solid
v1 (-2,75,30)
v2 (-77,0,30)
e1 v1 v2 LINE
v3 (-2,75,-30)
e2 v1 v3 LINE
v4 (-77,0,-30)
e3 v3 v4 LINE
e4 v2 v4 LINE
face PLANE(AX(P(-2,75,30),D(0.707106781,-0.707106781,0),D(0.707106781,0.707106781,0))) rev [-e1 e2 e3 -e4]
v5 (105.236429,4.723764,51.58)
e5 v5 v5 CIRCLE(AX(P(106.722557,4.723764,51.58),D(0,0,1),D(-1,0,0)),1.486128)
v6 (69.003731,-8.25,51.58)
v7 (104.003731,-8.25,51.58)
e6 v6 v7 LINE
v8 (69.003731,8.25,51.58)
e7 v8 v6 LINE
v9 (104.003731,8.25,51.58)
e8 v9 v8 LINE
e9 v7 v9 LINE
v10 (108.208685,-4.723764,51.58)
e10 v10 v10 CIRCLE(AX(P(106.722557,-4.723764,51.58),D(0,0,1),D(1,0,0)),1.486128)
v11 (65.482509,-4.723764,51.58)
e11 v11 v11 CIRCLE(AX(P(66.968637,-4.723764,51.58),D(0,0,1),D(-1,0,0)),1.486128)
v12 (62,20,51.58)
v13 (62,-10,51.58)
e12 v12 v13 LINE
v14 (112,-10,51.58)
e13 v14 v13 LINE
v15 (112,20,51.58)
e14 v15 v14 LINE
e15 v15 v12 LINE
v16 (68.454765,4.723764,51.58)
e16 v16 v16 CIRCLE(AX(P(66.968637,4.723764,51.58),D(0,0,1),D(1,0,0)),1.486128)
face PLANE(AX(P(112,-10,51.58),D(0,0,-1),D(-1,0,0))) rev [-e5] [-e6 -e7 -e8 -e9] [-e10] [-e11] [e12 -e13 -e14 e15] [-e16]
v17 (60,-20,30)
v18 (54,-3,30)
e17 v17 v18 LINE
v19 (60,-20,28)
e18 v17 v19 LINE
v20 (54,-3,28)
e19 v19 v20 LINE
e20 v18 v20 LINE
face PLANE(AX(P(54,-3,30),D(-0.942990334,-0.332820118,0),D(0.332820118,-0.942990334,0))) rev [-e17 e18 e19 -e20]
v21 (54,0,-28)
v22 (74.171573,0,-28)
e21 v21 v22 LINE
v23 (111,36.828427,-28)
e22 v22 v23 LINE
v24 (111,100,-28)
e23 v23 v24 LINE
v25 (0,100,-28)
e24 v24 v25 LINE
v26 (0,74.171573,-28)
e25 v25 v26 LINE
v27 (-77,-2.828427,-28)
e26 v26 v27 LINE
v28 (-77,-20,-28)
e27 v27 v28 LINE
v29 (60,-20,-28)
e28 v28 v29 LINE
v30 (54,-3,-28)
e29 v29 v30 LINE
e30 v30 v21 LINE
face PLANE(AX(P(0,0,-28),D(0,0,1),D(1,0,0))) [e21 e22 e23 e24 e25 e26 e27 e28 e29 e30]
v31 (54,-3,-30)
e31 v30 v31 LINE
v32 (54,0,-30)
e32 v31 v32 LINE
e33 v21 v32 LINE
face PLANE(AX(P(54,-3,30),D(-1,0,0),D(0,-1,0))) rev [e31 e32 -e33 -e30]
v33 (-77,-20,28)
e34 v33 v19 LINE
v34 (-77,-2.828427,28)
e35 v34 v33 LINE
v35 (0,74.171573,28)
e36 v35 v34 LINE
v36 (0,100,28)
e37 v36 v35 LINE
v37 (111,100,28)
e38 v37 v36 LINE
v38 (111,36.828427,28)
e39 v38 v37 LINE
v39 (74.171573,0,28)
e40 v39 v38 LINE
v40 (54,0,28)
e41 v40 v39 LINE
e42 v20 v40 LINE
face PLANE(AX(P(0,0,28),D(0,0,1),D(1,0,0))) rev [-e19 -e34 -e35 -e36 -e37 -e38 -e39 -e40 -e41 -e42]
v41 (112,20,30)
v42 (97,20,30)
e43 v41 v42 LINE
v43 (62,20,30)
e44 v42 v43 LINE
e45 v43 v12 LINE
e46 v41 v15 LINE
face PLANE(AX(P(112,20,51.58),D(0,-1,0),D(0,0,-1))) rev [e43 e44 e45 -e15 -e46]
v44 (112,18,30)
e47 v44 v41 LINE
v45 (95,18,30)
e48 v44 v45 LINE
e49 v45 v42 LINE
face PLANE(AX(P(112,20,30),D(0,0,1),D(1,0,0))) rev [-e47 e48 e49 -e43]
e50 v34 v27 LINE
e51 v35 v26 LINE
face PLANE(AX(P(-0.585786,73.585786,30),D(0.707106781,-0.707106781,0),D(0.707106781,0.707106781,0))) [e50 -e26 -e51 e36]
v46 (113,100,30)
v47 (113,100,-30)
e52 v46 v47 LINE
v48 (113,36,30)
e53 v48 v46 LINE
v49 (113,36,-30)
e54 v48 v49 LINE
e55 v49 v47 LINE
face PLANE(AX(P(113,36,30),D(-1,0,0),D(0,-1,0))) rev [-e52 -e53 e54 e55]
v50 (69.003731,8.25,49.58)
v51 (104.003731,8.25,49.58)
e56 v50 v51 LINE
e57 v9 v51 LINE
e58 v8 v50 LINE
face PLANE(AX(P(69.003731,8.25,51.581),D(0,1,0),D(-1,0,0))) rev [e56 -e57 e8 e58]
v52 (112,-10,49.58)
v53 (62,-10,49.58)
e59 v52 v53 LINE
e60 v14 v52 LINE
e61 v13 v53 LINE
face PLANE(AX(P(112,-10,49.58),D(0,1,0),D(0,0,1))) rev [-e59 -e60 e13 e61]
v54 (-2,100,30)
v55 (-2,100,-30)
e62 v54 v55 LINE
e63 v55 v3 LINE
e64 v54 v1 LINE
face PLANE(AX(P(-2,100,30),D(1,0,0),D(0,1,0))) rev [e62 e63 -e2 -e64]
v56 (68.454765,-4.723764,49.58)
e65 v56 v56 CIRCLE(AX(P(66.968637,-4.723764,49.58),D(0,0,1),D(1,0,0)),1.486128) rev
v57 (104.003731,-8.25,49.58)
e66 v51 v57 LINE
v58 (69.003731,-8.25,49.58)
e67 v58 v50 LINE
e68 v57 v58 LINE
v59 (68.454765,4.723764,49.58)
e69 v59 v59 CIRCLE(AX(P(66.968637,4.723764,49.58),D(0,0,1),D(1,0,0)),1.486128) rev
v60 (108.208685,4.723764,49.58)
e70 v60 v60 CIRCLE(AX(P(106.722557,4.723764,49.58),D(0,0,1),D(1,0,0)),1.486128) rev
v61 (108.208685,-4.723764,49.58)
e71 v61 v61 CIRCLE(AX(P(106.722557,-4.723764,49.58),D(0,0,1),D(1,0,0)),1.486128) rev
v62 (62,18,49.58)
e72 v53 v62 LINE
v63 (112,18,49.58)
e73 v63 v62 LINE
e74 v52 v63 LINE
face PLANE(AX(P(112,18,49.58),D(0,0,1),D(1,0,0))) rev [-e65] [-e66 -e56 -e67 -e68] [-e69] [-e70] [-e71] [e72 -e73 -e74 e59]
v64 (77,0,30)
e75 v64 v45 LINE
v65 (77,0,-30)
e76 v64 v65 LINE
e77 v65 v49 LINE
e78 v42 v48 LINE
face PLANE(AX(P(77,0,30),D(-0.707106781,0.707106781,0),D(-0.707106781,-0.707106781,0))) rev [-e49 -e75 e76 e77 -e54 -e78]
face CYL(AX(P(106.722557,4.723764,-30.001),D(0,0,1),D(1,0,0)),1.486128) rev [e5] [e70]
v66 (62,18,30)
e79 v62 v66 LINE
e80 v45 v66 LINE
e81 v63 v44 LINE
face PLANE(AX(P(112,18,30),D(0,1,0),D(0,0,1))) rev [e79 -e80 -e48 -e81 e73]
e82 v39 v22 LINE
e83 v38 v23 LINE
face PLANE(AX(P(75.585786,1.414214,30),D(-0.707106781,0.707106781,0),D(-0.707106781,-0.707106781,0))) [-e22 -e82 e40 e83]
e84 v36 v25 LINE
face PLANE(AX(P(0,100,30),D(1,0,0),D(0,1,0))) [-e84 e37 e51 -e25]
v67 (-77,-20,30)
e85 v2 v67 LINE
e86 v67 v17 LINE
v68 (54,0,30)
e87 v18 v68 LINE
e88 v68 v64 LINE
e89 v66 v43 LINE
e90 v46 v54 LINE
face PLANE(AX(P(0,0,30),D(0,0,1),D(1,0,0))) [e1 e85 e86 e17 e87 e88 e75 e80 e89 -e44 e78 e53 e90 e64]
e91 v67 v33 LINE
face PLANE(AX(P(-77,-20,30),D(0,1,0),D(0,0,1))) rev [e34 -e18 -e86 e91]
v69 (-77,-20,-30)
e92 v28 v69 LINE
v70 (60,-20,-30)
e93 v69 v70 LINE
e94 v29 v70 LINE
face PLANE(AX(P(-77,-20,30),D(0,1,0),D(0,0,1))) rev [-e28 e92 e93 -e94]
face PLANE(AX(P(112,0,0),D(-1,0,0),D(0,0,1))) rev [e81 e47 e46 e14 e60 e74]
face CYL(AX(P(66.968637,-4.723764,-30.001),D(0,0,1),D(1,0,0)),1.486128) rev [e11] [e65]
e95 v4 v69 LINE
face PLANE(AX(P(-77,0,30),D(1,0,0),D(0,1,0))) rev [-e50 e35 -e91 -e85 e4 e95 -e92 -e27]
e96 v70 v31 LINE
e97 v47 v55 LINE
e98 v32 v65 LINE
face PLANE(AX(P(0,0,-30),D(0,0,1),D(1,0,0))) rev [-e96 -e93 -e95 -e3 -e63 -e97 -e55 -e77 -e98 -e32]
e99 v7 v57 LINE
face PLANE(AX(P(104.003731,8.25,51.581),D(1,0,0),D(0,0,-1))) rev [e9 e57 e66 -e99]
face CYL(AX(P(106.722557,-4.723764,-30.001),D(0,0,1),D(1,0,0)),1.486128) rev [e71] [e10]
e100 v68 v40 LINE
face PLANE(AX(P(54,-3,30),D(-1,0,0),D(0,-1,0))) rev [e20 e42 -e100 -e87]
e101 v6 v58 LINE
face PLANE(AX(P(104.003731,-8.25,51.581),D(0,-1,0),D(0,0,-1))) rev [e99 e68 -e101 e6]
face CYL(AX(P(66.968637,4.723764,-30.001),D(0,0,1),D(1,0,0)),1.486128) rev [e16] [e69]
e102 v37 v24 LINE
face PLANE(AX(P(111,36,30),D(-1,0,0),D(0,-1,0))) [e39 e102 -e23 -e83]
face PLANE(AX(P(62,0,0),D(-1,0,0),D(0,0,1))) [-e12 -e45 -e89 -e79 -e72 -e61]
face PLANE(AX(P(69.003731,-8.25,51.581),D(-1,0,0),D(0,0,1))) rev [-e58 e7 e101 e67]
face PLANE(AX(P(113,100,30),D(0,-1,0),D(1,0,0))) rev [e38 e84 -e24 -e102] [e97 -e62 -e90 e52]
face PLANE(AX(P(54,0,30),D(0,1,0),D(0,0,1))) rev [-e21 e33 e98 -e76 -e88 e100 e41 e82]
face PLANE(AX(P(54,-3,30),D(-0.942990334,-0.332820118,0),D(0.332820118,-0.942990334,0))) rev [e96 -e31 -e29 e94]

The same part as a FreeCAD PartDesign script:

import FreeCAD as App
import Part
import Sketcher
Q = App.Units.Quantity


def faces_at(feature, points):
    """Names of the faces that lie closest to the given points."""
    faces = feature.Shape.Faces
    near = lambda p: min(range(len(faces)), key=lambda i: faces[i].distToShape(Part.Vertex(*p))[0])
    return sorted({f"Face{near(p) + 1}" for p in points})

doc = App.newDocument("Part")
params = doc.addObject("Spreadsheet::Sheet", "Params")
for row, (alias, value) in enumerate([
    ("sketch1_width", "115 mm"),
    ("sketch1_width2", "137 mm"),
    ("sketch1_width3", "23 mm"),
    ("sketch1_height", "64 mm"),
    ("sketch1_height2", "25 mm"),
    ("pad1_length", "60 mm"),
    ("thickness_wall", "2 mm"),
    ("sketch2_width", "2 mm"),
    ("sketch2_width2", "30 mm"),
    ("sketch2_height", "21.58 mm"),
    ("pad2_length", "50 mm"),
    ("sketch3_width", "35 mm"),
    ("sketch3_height", "16.5 mm"),
], start=1):
    params.set(f"A{row}", alias)
    params.set(f"B{row}", "=" + value)
    params.setAlias(f"B{row}", alias)

body = doc.addObject("PartDesign::Body", "Body")

# Sketch on XY plane
sketch1 = body.newObject("Sketcher::SketchObject", "Sketch")
sketch1.AttachmentSupport = (doc.getObject("XY_Plane"), [""])
sketch1.MapMode = "FlatFace"
sketch1.addGeometry([
    Part.LineSegment(App.Vector(77, 0, 0), App.Vector(113, 36, 0)),  # 0
    Part.LineSegment(App.Vector(113, 36, 0), App.Vector(113, 100, 0)),  # 1
    Part.LineSegment(App.Vector(113, 100, 0), App.Vector(-2, 100, 0)),  # 2
    Part.LineSegment(App.Vector(-2, 100, 0), App.Vector(-2, 75, 0)),  # 3
    Part.LineSegment(App.Vector(-2, 75, 0), App.Vector(-77, 0, 0)),  # 4
    Part.LineSegment(App.Vector(-77, 0, 0), App.Vector(-77, -20, 0)),  # 5
    Part.LineSegment(App.Vector(-77, -20, 0), App.Vector(60, -20, 0)),  # 6
    Part.LineSegment(App.Vector(60, -20, 0), App.Vector(54, -3, 0)),  # 7
    Part.LineSegment(App.Vector(54, -3, 0), App.Vector(54, 0, 0)),  # 8
    Part.LineSegment(App.Vector(54, 0, 0), App.Vector(77, 0, 0)),  # 9
], False)
sketch1.addConstraint([
    Sketcher.Constraint("Coincident", 0, 2, 1, 1),
    Sketcher.Constraint("Coincident", 1, 2, 2, 1),
    Sketcher.Constraint("Coincident", 2, 2, 3, 1),
    Sketcher.Constraint("Coincident", 3, 2, 4, 1),
    Sketcher.Constraint("Coincident", 4, 2, 5, 1),
    Sketcher.Constraint("Coincident", 5, 2, 6, 1),
    Sketcher.Constraint("Coincident", 6, 2, 7, 1),
    Sketcher.Constraint("Coincident", 7, 2, 8, 1),
    Sketcher.Constraint("Coincident", 8, 2, 9, 1),
    Sketcher.Constraint("Coincident", 9, 2, 0, 1),
    Sketcher.Constraint("Vertical", 1),
    Sketcher.Constraint("Horizontal", 2),
    Sketcher.Constraint("Vertical", 3),
    Sketcher.Constraint("Vertical", 5),
    Sketcher.Constraint("Horizontal", 6),
    Sketcher.Constraint("Vertical", 8),
    Sketcher.Constraint("Horizontal", 9),
    Sketcher.Constraint("Symmetric", 4, 2, 9, 2, -1, 1),
    Sketcher.Constraint("PointOnObject", 4, 2, -1),
    Sketcher.Constraint("Parallel", 0, 4),
    Sketcher.Constraint("DistanceX", 2, 2, 2, 1, Q("115 mm")),
    Sketcher.Constraint("DistanceX", 6, 1, 6, 2, Q("137 mm")),
    Sketcher.Constraint("DistanceX", 9, 1, 9, 2, Q("23 mm")),
    Sketcher.Constraint("DistanceY", 1, 1, 1, 2, Q("64 mm")),
    Sketcher.Constraint("DistanceY", 3, 2, 3, 1, Q("25 mm")),
    Sketcher.Constraint("DistanceY", 5, 2, 5, 1, Q("20 mm")),
    Sketcher.Constraint("DistanceY", 8, 1, 8, 2, Q("3 mm")),
    Sketcher.Constraint("Angle", 0, Q("45 deg")),
    Sketcher.Constraint("DistanceX", -1, 1, 0, 2, Q("113 mm")),
])
sketch1.setExpression("Constraints[20]", "Params.sketch1_width")
sketch1.setExpression("Constraints[21]", "Params.sketch1_width2")
sketch1.setExpression("Constraints[22]", "Params.sketch1_width3")
sketch1.setExpression("Constraints[23]", "Params.sketch1_height")
sketch1.setExpression("Constraints[24]", "Params.sketch1_height2")
pad1 = body.newObject("PartDesign::Pad", "Pad")
pad1.Profile = sketch1
pad1.setExpression("Length", "Params.pad1_length")
pad1.Midplane = True
doc.recompute()

thickness = body.newObject("PartDesign::Thickness", "Thickness")
thickness.Base = (pad1, faces_at(pad1, [
    (54, -1.5, 0),
    (57, -11.5, 0),
    (-8.5, -20, 0),
    (-77, -10, 0),
    (55.5, 100, 0),
    (65.5, 0, 0),
]))
thickness.setExpression("Value", "Params.thickness_wall")
thickness.Reversed = True
thickness.Join = "Intersection"

# Sketch on YZ plane
sketch2 = body.newObject("Sketcher::SketchObject", "Sketch001")
sketch2.AttachmentSupport = (doc.getObject("YZ_Plane"), [""])
sketch2.MapMode = "FlatFace"
sketch2.AttachmentOffset = App.Placement(App.Vector(0, 0, 87), App.Rotation())
sketch2.addGeometry([
    Part.LineSegment(App.Vector(18, 30, 0), App.Vector(20, 30, 0)),  # 0
    Part.LineSegment(App.Vector(20, 30, 0), App.Vector(20, 51.6, 0)),  # 1
    Part.LineSegment(App.Vector(20, 51.6, 0), App.Vector(-10, 51.6, 0)),  # 2
    Part.LineSegment(App.Vector(-10, 51.6, 0), App.Vector(-10, 49.6, 0)),  # 3
    Part.LineSegment(App.Vector(-10, 49.6, 0), App.Vector(18, 49.6, 0)),  # 4
    Part.LineSegment(App.Vector(18, 49.6, 0), App.Vector(18, 30, 0)),  # 5
], False)
sketch2.addConstraint([
    Sketcher.Constraint("Coincident", 0, 2, 1, 1),
    Sketcher.Constraint("Coincident", 1, 2, 2, 1),
    Sketcher.Constraint("Coincident", 2, 2, 3, 1),
    Sketcher.Constraint("Coincident", 3, 2, 4, 1),
    Sketcher.Constraint("Coincident", 4, 2, 5, 1),
    Sketcher.Constraint("Coincident", 5, 2, 0, 1),
    Sketcher.Constraint("Horizontal", 0),
    Sketcher.Constraint("Vertical", 1),
    Sketcher.Constraint("Horizontal", 2),
    Sketcher.Constraint("Vertical", 3),
    Sketcher.Constraint("Horizontal", 4),
    Sketcher.Constraint("Vertical", 5),
    Sketcher.Constraint("Equal", 0, 3),
    Sketcher.Constraint("DistanceX", 0, 1, 0, 2, Q("2 mm")),
    Sketcher.Constraint("DistanceX", 2, 2, 2, 1, Q("30 mm")),
    Sketcher.Constraint("DistanceX", -1, 1, 0, 2, Q("20 mm")),
    Sketcher.Constraint("DistanceY", -1, 1, 0, 2, Q("30 mm")),
    Sketcher.Constraint("DistanceY", 1, 1, 1, 2, Q("21.58 mm")),
])
sketch2.setExpression("Constraints[13]", "Params.sketch2_width")
sketch2.setExpression("Constraints[14]", "Params.sketch2_width2")
sketch2.setExpression("Constraints[17]", "Params.sketch2_height")
pad2 = body.newObject("PartDesign::Pad", "Pad001")
pad2.Profile = sketch2
pad2.setExpression("Length", "Params.pad2_length")
pad2.Midplane = True

# Sketch on XY plane
sketch3 = body.newObject("Sketcher::SketchObject", "Sketch002")
sketch3.AttachmentSupport = (doc.getObject("XY_Plane"), [""])
sketch3.MapMode = "FlatFace"
sketch3.AttachmentOffset = App.Placement(App.Vector(0, 0, 49.58), App.Rotation())
sketch3.addGeometry([
    Part.LineSegment(App.Vector(104, 8, 0), App.Vector(104, -8, 0)),
    Part.LineSegment(App.Vector(104, -8, 0), App.Vector(69, -8, 0)),
    Part.LineSegment(App.Vector(69, -8, 0), App.Vector(69, 8, 0)),
    Part.LineSegment(App.Vector(69, 8, 0), App.Vector(104, 8, 0)),
], False)
sketch3.addConstraint([
    Sketcher.Constraint("Coincident", 0, 2, 1, 1),
    Sketcher.Constraint("Coincident", 1, 2, 2, 1),
    Sketcher.Constraint("Coincident", 2, 2, 3, 1),
    Sketcher.Constraint("Coincident", 3, 2, 0, 1),
    Sketcher.Constraint("Vertical", 0),
    Sketcher.Constraint("Horizontal", 1),
    Sketcher.Constraint("Vertical", 2),
    Sketcher.Constraint("Horizontal", 3),
    Sketcher.Constraint("DistanceX", 1, 2, 1, 1, Q("35 mm")),
    Sketcher.Constraint("DistanceY", 0, 2, 0, 1, Q("16.5 mm")),
    Sketcher.Constraint("DistanceY", 0, 2, -1, 1, Q("8.25 mm")),
    Sketcher.Constraint("DistanceX", -1, 1, 0, 2, Q("104.003731 mm")),
])
sketch3.setExpression("Constraints[8]", "Params.sketch3_width")
sketch3.setExpression("Constraints[9]", "Params.sketch3_height")
pocket1 = body.newObject("PartDesign::Pocket", "Pocket")
pocket1.Profile = sketch3
pocket1.Type = "UpToFirst"
pocket1.Reversed = True

# Sketch on XY plane
sketch4 = body.newObject("Sketcher::SketchObject", "Sketch003")
sketch4.AttachmentSupport = (doc.getObject("XY_Plane"), [""])
sketch4.MapMode = "FlatFace"
sketch4.AttachmentOffset = App.Placement(App.Vector(0, 0, 51.58), App.Rotation())
sketch4.addGeometry(Part.Circle(App.Vector(67, 4.7, 0), App.Vector(0, 0, 1), 1.5), False)
sketch4.addConstraint([
    Sketcher.Constraint("Diameter", 0, Q("2.972256 mm")),
    Sketcher.Constraint("DistanceX", -1, 1, 0, 3, Q("66.968637 mm")),
    Sketcher.Constraint("DistanceY", -1, 1, 0, 3, Q("4.723764 mm")),
])
pocket2 = body.newObject("PartDesign::Pocket", "Pocket001")
pocket2.Profile = sketch4
pocket2.Type = "UpToFirst"

# Sketch on XY plane
sketch5 = body.newObject("Sketcher::SketchObject", "Sketch004")
sketch5.AttachmentSupport = (doc.getObject("XY_Plane"), [""])
sketch5.MapMode = "FlatFace"
sketch5.AttachmentOffset = App.Placement(App.Vector(0, 0, 51.58), App.Rotation())
sketch5.addGeometry(Part.Circle(App.Vector(106.7, 4.7, 0), App.Vector(0, 0, 1), 1.5), False)
sketch5.addConstraint([
    Sketcher.Constraint("Diameter", 0, Q("2.972256 mm")),
    Sketcher.Constraint("DistanceX", -1, 1, 0, 3, Q("106.722557 mm")),
    Sketcher.Constraint("DistanceY", -1, 1, 0, 3, Q("4.723764 mm")),
])
pocket3 = body.newObject("PartDesign::Pocket", "Pocket002")
pocket3.Profile = sketch5
pocket3.Type = "UpToFirst"

# Sketch on XY plane
sketch6 = body.newObject("Sketcher::SketchObject", "Sketch005")
sketch6.AttachmentSupport = (doc.getObject("XY_Plane"), [""])
sketch6.MapMode = "FlatFace"
sketch6.AttachmentOffset = App.Placement(App.Vector(0, 0, 51.58), App.Rotation())
sketch6.addGeometry(Part.Circle(App.Vector(106.7, -4.7, 0), App.Vector(0, 0, 1), 1.5), False)
sketch6.addConstraint([
    Sketcher.Constraint("Diameter", 0, Q("2.972256 mm")),
    Sketcher.Constraint("DistanceX", -1, 1, 0, 3, Q("106.722557 mm")),
    Sketcher.Constraint("DistanceY", 0, 3, -1, 1, Q("4.723764 mm")),
])
pocket4 = body.newObject("PartDesign::Pocket", "Pocket003")
pocket4.Profile = sketch6
pocket4.Type = "UpToFirst"

# Sketch on XY plane
sketch7 = body.newObject("Sketcher::SketchObject", "Sketch006")
sketch7.AttachmentSupport = (doc.getObject("XY_Plane"), [""])
sketch7.MapMode = "FlatFace"
sketch7.AttachmentOffset = App.Placement(App.Vector(0, 0, 51.58), App.Rotation())
sketch7.addGeometry(Part.Circle(App.Vector(67, -4.7, 0), App.Vector(0, 0, 1), 1.5), False)
sketch7.addConstraint([
    Sketcher.Constraint("Diameter", 0, Q("2.972256 mm")),
    Sketcher.Constraint("DistanceX", -1, 1, 0, 3, Q("66.968637 mm")),
    Sketcher.Constraint("DistanceY", 0, 3, -1, 1, Q("4.723764 mm")),
])
pocket5 = body.newObject("PartDesign::Pocket", "Pocket004")
pocket5.Profile = sketch7
pocket5.Type = "UpToFirst"

doc.recompute()
